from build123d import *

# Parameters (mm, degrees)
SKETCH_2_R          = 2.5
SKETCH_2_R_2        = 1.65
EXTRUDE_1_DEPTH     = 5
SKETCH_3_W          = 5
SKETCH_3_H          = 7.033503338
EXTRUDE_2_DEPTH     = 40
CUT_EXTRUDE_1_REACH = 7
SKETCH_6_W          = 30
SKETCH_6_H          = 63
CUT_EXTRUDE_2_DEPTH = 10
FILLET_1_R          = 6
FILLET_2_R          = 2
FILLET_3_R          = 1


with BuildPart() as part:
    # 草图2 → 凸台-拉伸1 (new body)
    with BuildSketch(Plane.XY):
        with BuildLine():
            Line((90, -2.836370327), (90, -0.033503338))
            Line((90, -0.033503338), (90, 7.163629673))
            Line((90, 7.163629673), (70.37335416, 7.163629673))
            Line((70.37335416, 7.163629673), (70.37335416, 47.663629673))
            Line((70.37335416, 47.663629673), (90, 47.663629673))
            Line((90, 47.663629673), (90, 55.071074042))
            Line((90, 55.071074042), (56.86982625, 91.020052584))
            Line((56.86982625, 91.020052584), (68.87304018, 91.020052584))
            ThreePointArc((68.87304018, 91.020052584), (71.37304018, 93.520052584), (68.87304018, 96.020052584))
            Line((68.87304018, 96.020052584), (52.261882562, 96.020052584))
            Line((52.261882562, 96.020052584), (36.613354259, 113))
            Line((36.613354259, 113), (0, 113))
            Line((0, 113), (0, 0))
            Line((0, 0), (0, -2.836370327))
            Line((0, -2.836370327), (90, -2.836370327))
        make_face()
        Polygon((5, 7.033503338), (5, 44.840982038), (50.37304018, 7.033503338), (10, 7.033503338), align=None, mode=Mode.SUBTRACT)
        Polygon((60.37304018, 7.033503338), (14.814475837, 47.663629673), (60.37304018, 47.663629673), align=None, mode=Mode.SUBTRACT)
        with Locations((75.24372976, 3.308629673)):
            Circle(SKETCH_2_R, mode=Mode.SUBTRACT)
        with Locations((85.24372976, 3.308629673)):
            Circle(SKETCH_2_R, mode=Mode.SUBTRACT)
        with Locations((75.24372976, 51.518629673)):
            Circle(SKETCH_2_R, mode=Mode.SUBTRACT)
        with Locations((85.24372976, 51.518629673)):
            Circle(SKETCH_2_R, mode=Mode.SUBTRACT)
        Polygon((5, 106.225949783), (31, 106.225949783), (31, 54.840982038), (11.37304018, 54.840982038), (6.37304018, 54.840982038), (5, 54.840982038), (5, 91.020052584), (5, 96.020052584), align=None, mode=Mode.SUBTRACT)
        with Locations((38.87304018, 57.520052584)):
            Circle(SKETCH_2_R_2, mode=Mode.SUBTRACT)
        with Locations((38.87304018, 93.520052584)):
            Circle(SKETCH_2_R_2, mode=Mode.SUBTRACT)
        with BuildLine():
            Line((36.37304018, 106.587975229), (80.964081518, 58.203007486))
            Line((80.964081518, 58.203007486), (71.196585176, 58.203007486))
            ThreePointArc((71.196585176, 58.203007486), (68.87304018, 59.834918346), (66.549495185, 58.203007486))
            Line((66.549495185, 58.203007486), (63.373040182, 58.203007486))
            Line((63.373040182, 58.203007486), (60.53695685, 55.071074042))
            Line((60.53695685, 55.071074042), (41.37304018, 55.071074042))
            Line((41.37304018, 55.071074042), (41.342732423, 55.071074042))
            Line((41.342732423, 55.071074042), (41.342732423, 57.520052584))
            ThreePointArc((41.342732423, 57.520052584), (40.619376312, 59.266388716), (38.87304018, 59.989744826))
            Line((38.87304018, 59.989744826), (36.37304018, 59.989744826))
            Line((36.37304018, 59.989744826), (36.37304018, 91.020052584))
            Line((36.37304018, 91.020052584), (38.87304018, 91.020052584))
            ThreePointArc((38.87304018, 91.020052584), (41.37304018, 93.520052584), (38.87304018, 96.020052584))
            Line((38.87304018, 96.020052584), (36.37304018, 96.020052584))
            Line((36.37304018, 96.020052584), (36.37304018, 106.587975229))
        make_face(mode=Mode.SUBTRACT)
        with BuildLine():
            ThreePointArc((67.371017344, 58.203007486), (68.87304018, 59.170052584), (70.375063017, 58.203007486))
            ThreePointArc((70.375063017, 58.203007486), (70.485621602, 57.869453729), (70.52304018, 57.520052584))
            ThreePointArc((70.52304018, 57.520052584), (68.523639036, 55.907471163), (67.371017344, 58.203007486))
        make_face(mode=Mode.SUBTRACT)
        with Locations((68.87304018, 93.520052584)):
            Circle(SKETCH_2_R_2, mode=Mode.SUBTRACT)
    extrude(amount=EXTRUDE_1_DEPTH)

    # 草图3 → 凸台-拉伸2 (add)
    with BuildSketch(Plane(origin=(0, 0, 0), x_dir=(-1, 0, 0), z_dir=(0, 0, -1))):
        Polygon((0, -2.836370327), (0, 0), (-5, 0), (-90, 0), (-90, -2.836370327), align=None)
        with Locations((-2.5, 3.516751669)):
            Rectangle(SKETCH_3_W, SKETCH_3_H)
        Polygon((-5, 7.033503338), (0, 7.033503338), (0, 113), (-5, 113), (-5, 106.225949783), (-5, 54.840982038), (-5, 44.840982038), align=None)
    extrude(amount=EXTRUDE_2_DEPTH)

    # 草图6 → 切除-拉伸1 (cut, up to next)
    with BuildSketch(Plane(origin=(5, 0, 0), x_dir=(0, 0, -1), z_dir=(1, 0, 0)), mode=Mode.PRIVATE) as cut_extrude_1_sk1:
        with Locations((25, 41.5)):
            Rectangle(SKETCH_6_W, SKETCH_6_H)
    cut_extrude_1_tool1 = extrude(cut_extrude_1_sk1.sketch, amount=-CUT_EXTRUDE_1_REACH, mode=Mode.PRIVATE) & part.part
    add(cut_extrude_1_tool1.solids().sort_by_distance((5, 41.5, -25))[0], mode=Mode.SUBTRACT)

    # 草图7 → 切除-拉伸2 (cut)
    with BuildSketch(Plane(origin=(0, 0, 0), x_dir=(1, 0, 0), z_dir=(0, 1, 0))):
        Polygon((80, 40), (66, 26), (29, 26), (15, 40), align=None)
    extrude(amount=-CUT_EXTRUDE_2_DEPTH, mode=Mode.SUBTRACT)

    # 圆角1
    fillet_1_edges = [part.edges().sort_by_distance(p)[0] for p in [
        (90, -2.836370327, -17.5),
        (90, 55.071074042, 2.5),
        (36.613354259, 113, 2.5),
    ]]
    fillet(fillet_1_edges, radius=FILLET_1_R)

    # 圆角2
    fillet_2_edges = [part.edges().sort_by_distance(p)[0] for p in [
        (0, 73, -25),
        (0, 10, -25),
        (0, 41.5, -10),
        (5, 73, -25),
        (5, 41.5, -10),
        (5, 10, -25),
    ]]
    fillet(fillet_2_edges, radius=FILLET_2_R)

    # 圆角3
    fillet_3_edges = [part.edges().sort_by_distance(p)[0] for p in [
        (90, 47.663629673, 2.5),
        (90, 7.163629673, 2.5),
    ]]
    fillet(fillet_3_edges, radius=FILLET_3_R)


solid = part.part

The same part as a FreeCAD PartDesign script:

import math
import FreeCAD as App
import Part
import Sketcher

V = App.Vector
Q = App.Units.Quantity


def edges_at(feature, points):
    """Names of the edges that pass closest to the given points."""
    edges = feature.Shape.Edges
    near = lambda p: min(range(len(edges)), key=lambda i: edges[i].distToShape(Part.Vertex(*p))[0])
    return sorted({f"Edge{near(p) + 1}" for p in points})

doc = App.newDocument("Part")
body = doc.addObject("PartDesign::Body", "Body")

# Sketch on XY plane
sketch1 = doc.addObject("Sketcher::SketchObject", "Sketch")
body.addObject(sketch1)
sketch1.AttachmentSupport = (doc.XY_Plane, [""])
sketch1.MapMode = "FlatFace"
sketch1.addGeometry(Part.LineSegment(V(90, -2.8, 0), V(90, 7.2, 0)), False)
sketch1.addGeometry(Part.LineSegment(V(90, 7.2, 0), V(70.4, 7.2, 0)), False)
sketch1.addGeometry(Part.LineSegment(V(70.4, 7.2, 0), V(70.4, 47.7, 0)), False)
sketch1.addGeometry(Part.LineSegment(V(70.4, 47.7, 0), V(90, 47.7, 0)), False)
sketch1.addGeometry(Part.LineSegment(V(90, 47.7, 0), V(90, 55.1, 0)), False)
sketch1.addGeometry(Part.LineSegment(V(90, 55.1, 0), V(56.9, 91, 0)), False)
sketch1.addGeometry(Part.LineSegment(V(56.9, 91, 0), V(68.9, 91, 0)), False)
sketch1.addGeometry(Part.ArcOfCircle(Part.Circle(V(68.9, 93.5, 0), V(0, 0, 1), 2.5), math.radians(-90), math.radians(90)), False)
sketch1.addGeometry(Part.LineSegment(V(68.9, 96, 0), V(52.3, 96, 0)), False)
sketch1.addGeometry(Part.LineSegment(V(52.3, 96, 0), V(36.6, 113, 0)), False)
sketch1.addGeometry(Part.LineSegment(V(36.6, 113, 0), V(0, 113, 0)), False)
sketch1.addGeometry(Part.LineSegment(V(0, 113, 0), V(0, -2.8, 0)), False)
sketch1.addGeometry(Part.LineSegment(V(0, -2.8, 0), V(90, -2.8, 0)), False)
sketch1.addGeometry(Part.LineSegment(V(50.4, 7, 0), V(5, 7, 0)), False)
sketch1.addGeometry(Part.LineSegment(V(5, 7, 0), V(5, 44.8, 0)), False)
sketch1.addGeometry(Part.LineSegment(V(5, 44.8, 0), V(50.4, 7, 0)), False)
sketch1.addGeometry(Part.LineSegment(V(60.4, 47.7, 0), V(60.4, 7, 0)), False)
sketch1.addGeometry(Part.LineSegment(V(60.4, 7, 0), V(14.8, 47.7, 0)), False)
sketch1.addGeometry(Part.LineSegment(V(14.8, 47.7, 0), V(60.4, 47.7, 0)), False)
sketch1.addGeometry(Part.Circle(V(75.2, 3.3, 0), V(0, 0, 1), 2.5), False)
sketch1.addGeometry(Part.Circle(V(85.2, 3.3, 0), V(0, 0, 1), 2.5), False)
sketch1.addGeometry(Part.Circle(V(75.2, 51.5, 0), V(0, 0, 1), 2.5), False)
sketch1.addGeometry(Part.Circle(V(85.2, 51.5, 0), V(0, 0, 1), 2.5), False)
sketch1.addGeometry(Part.Circle(V(38.9, 57.5, 0), V(0, 0, 1), 1.6), False)
sketch1.addGeometry(Part.LineSegment(V(5, 54.8, 0), V(5, 106.2, 0)), False)
sketch1.addGeometry(Part.LineSegment(V(5, 106.2, 0), V(31, 106.2, 0)), False)
sketch1.addGeometry(Part.LineSegment(V(31, 106.2, 0), V(31, 54.8, 0)), False)
sketch1.addGeometry(Part.LineSegment(V(31, 54.8, 0), V(5, 54.8, 0)), False)
sketch1.addGeometry(Part.Circle(V(38.9, 93.5, 0), V(0, 0, 1), 1.6), False)
sketch1.addGeometry(Part.ArcOfCircle(Part.Circle(V(68.9, 57.5, 0), V(0, 0, 1), 1.6), math.radians(156), math.radians(360)), False)
sketch1.addGeometry(Part.ArcOfCircle(Part.Circle(V(68.9, 57.5, 0), V(0, 0, 1), 1.6), math.radians(24), math.radians(156)), False)
sketch1.addGeometry(Part.ArcOfCircle(Part.Circle(V(68.9, 57.5, 0), V(0, 0, 1), 1.6), math.radians(0), math.radians(24)), False)
sketch1.addGeometry(Part.LineSegment(V(36.4, 96, 0), V(36.4, 106.6, 0)), False)
sketch1.addGeometry(Part.LineSegment(V(36.4, 106.6, 0), V(81, 58.2, 0)), False)
sketch1.addGeometry(Part.LineSegment(V(81, 58.2, 0), V(71.2, 58.2, 0)), False)
sketch1.addGeometry(Part.ArcOfCircle(Part.Circle(V(68.9, 57.4, 0), V(0, 0, 1), 2.5), math.radians(20), math.radians(160)), False)
sketch1.addGeometry(Part.LineSegment(V(66.5, 58.2, 0), V(63.4, 58.2, 0)), False)
sketch1.addGeometry(Part.LineSegment(V(63.4, 58.2, 0), V(60.5, 55.1, 0)), False)
sketch1.addGeometry(Part.LineSegment(V(60.5, 55.1, 0), V(41.3, 55.1, 0)), False)
sketch1.addGeometry(Part.LineSegment(V(41.3, 55.1, 0), V(41.3, 57.5, 0)), False)
sketch1.addGeometry(Part.ArcOfCircle(Part.Circle(V(38.9, 57.5, 0), V(0, 0, 1), 2.5), math.radians(0), math.radians(90)), False)
sketch1.addGeometry(Part.LineSegment(V(38.9, 60, 0), V(36.4, 60, 0)), False)
sketch1.addGeometry(Part.LineSegment(V(36.4, 60, 0), V(36.4, 91, 0)), False)
sketch1.addGeometry(Part.LineSegment(V(36.4, 91, 0), V(38.9, 91, 0)), False)
sketch1.addGeometry(Part.ArcOfCircle(Part.Circle(V(38.9, 93.5, 0), V(0, 0, 1), 2.5), math.radians(-90), math.radians(90)), False)
sketch1.addGeometry(Part.LineSegment(V(38.9, 96, 0), V(36.4, 96, 0)), False)
sketch1.addGeometry(Part.Circle(V(68.9, 93.5, 0), V(0, 0, 1), 1.6), False)
sketch1.addConstraint(Sketcher.Constraint("Coincident", 0, 2, 1, 1))
sketch1.addConstraint(Sketcher.Constraint("Coincident", 1, 2, 2, 1))
sketch1.addConstraint(Sketcher.Constraint("Coincident", 2, 2, 3, 1))
sketch1.addConstraint(Sketcher.Constraint("Coincident", 3, 2, 4, 1))
sketch1.addConstraint(Sketcher.Constraint("Coincident", 4, 2, 5, 1))
sketch1.addConstraint(Sketcher.Constraint("Coincident", 5, 2, 6, 1))
sketch1.addConstraint(Sketcher.Constraint("Tangent", 6, 2, 7, 1))
sketch1.addConstraint(Sketcher.Constraint("Tangent", 7, 2, 8, 1))
sketch1.addConstraint(Sketcher.Constraint("Coincident", 8, 2, 9, 1))
sketch1.addConstraint(Sketcher.Constraint("Coincident", 9, 2, 10, 1))
sketch1.addConstraint(Sketcher.Constraint("Coincident", 10, 2, 11, 1))
sketch1.addConstraint(Sketcher.Constraint("Coincident", 11, 2, 12, 1))
sketch1.addConstraint(Sketcher.Constraint("Coincident", 12, 2, 0, 1))
sketch1.addConstraint(Sketcher.Constraint("Coincident", 13, 2, 14, 1))
sketch1.addConstraint(Sketcher.Constraint("Coincident", 14, 2, 15, 1))
sketch1.addConstraint(Sketcher.Constraint("Coincident", 15, 2, 13, 1))
sketch1.addConstraint(Sketcher.Constraint("Coincident", 16, 2, 17, 1))
sketch1.addConstraint(Sketcher.Constraint("Coincident", 17, 2, 18, 1))
sketch1.addConstraint(Sketcher.Constraint("Coincident", 18, 2, 16, 1))
sketch1.addConstraint(Sketcher.Constraint("Coincident", 24, 2, 25, 1))
sketch1.addConstraint(Sketcher.Constraint("Coincident", 25, 2, 26, 1))
sketch1.addConstraint(Sketcher.Constraint("Coincident", 26, 2, 27, 1))
sketch1.addConstraint(Sketcher.Constraint("Coincident", 27, 2, 24, 1))
sketch1.addConstraint(Sketcher.Constraint("Tangent", 29, 1, 30, 2))
sketch1.addConstraint(Sketcher.Constraint("Tangent", 30, 1, 31, 2))
sketch1.addConstraint(Sketcher.Constraint("Tangent", 31, 1, 29, 2))
sketch1.addConstraint(Sketcher.Constraint("Coincident", 32, 2, 33, 1))
sketch1.addConstraint(Sketcher.Constraint("Coincident", 33, 2, 34, 1))
sketch1.addConstraint(Sketcher.Constraint("Coincident", 34, 2, 35, 1))
sketch1.addConstraint(Sketcher.Constraint("Coincident", 35, 2, 36, 1))
sketch1.addConstraint(Sketcher.Constraint("Coincident", 36, 2, 37, 1))
sketch1.addConstraint(Sketcher.Constraint("Coincident", 37, 2, 38, 1))
sketch1.addConstraint(Sketcher.Constraint("Coincident", 38, 2, 39, 1))
sketch1.addConstraint(Sketcher.Constraint("Tangent", 39, 2, 40, 1))
sketch1.addConstraint(Sketcher.Constraint("Tangent", 40, 2, 41, 1))
sketch1.addConstraint(Sketcher.Constraint("Coincident", 41, 2, 42, 1))
sketch1.addConstraint(Sketcher.Constraint("Coincident", 42, 2, 43, 1))
sketch1.addConstraint(Sketcher.Constraint("Tangent", 43, 2, 44, 1))
sketch1.addConstraint(Sketcher.Constraint("Tangent", 44, 2, 45, 1))
sketch1.addConstraint(Sketcher.Constraint("Coincident", 45, 2, 32, 1))
sketch1.addConstraint(Sketcher.Constraint("Vertical", 0))
sketch1.addConstraint(Sketcher.Constraint("Horizontal", 1))
sketch1.addConstraint(Sketcher.Constraint("Vertical", 2))
sketch1.addConstraint(Sketcher.Constraint("Horizontal", 3))
sketch1.addConstraint(Sketcher.Constraint("Vertical", 4))
sketch1.addConstraint(Sketcher.Constraint("Horizontal", 6))
sketch1.addConstraint(Sketcher.Constraint("Horizontal", 8))
sketch1.addConstraint(Sketcher.Constraint("Horizontal", 10))
sketch1.addConstraint(Sketcher.Constraint("Vertical", 11))
sketch1.addConstraint(Sketcher.Constraint("Horizontal", 12))
sketch1.addConstraint(Sketcher.Constraint("Horizontal", 13))
sketch1.addConstraint(Sketcher.Constraint("Vertical", 14))
sketch1.addConstraint(Sketcher.Constraint("Vertical", 16))
sketch1.addConstraint(Sketcher.Constraint("Horizontal", 18))
sketch1.addConstraint(Sketcher.Constraint("Vertical", 24))
sketch1.addConstraint(Sketcher.Constraint("Horizontal", 25))
sketch1.addConstraint(Sketcher.Constraint("Vertical", 26))
sketch1.addConstraint(Sketcher.Constraint("Horizontal", 27))
sketch1.addConstraint(Sketcher.Constraint("Vertical", 32))
sketch1.addConstraint(Sketcher.Constraint("Horizontal", 34))
sketch1.addConstraint(Sketcher.Constraint("Horizontal", 36))
sketch1.addConstraint(Sketcher.Constraint("Horizontal", 38))
sketch1.addConstraint(Sketcher.Constraint("Vertical", 39))
sketch1.addConstraint(Sketcher.Constraint("Horizontal", 41))
sketch1.addConstraint(Sketcher.Constraint("Vertical", 42))
sketch1.addConstraint(Sketcher.Constraint("Horizontal", 43))
sketch1.addConstraint(Sketcher.Constraint("Horizontal", 45))
sketch1.addConstraint(Sketcher.Constraint("Coincident", 40, 3, 23, 3))
sketch1.addConstraint(Sketcher.Constraint("Coincident", 44, 3, 28, 3))
sketch1.addConstraint(Sketcher.Constraint("Coincident", 46, 3, 7, 3))
sketch1.addConstraint(Sketcher.Constraint("Equal", 7, 19))
sketch1.addConstraint(Sketcher.Constraint("Equal", 19, 20))
sketch1.addConstraint(Sketcher.Constraint("Equal", 20, 21))
sketch1.addConstraint(Sketcher.Constraint("Equal", 21, 22))
sketch1.addConstraint(Sketcher.Constraint("Equal", 23, 28))
sketch1.addConstraint(Sketcher.Constraint("Equal", 28, 29))
sketch1.addConstraint(Sketcher.Constraint("Equal", 22, 44))
sketch1.addConstraint(Sketcher.Constraint("Equal", 31, 46))
sketch1.addConstraint(Sketcher.Constraint("PointOnObject", 10, 2, -2))
sketch1.addConstraint(Sketcher.Constraint("Parallel", 5, 9))
sketch1.addConstraint(Sketcher.Constraint("Parallel", 9, 33))
sketch1.addConstraint(Sketcher.Constraint("Horizontal", 19, 3, 20, 3))
sketch1.addConstraint(Sketcher.Constraint("Horizontal", 21, 3, 22, 3))
sketch1.addConstraint(Sketcher.Constraint("Horizontal", 7, 3, 28, 3))
sketch1.addConstraint(Sketcher.Constraint("Horizontal", 23, 3, 29, 3))
sketch1.addConstraint(Sketcher.Constraint("Horizontal", 15, 2, 16, 2))
sketch1.addConstraint(Sketcher.Constraint("Horizontal", 3, 2, 17, 2))
sketch1.addConstraint(Sketcher.Constraint("Horizontal", 29, 1, 30, 1))
sketch1.addConstraint(Sketcher.Constraint("Horizontal", 40, 3, 31, 1))
sketch1.addConstraint(Sketcher.Constraint("Horizontal", 30, 1, 33, 2))
sketch1.addConstraint(Sketcher.Constraint("Horizontal", 34, 2, 35, 2))
sketch1.addConstraint(Sketcher.Constraint("Horizontal", 4, 2, 37, 2))
sketch1.addConstraint(Sketcher.Constraint("Vertical", 19, 3, 21, 3))
sketch1.addConstraint(Sketcher.Constraint("Vertical", 20, 3, 22, 3))
sketch1.addConstraint(Sketcher.Constraint("Vertical", 23, 3, 28, 3))
sketch1.addConstraint(Sketcher.Constraint("Vertical", 7, 3, 29, 3))
sketch1.addConstraint(Sketcher.Constraint("Vertical", 31, 3, 35, 3))
sketch1.addConstraint(Sketcher.Constraint("Vertical", 0, 2, 3, 2))
sketch1.addConstraint(Sketcher.Constraint("Vertical", 14, 2, 24, 2))
sketch1.addConstraint(Sketcher.Constraint("Vertical", 32, 2, 41, 2))
sketch1.addConstraint(Sketcher.Constraint("Diameter", 19, Q("5 mm")))
sketch1.addConstraint(Sketcher.Constraint("Diameter", 23, Q("3.3 mm")))
sketch1.addConstraint(Sketcher.Constraint("DistanceX", 12, 1, 12, 2, Q("90 mm")))
sketch1.addConstraint(Sketcher.Constraint("DistanceX", 25, 1, 25, 2, Q("26 mm")))
sketch1.addConstraint(Sketcher.Constraint("DistanceY", 0, 1, 0, 2, Q("10 mm")))
sketch1.addConstraint(Sketcher.Constraint("DistanceX", 41, 2, 41, 1, Q("2.5 mm")))
sketch1.addConstraint(Sketcher.Constraint("DistanceY", 2, 1, 2, 2, Q("40.5 mm")))
sketch1.addConstraint(Sketcher.Constraint("DistanceY", -1, 1, 9, 2, Q("113 mm")))
sketch1.addConstraint(Sketcher.Constraint("DistanceX", -1, 1, 13, 2, Q("5 mm")))
sketch1.addConstraint(Sketcher.Constraint("DistanceX", 19, 3, 20, 3, Q("10 mm")))
sketch1.addConstraint(Sketcher.Constraint("DistanceX", 23, 3, 7, 3, Q("30 mm")))
sketch1.addConstraint(Sketcher.Constraint("DistanceY", 23, 3, 7, 3, Q("36 mm")))
sketch1.addConstraint(Sketcher.Constraint("DistanceX", 15, 2, 16, 2, Q("10 mm")))
sketch1.addConstraint(Sketcher.Constraint("DistanceY", 14, 2, 26, 2, Q("10 mm")))
sketch1.addConstraint(Sketcher.Constraint("DistanceX", 18, 2, 35, 3, Q("8.5 mm")))
sketch1.addConstraint(Sketcher.Constraint("DistanceX", 36, 2, 29, 3, Q("5.5 mm")))
sketch1.addConstraint(Sketcher.Constraint("Radius", 35, Q("2.470109 mm")))
sketch1.addConstraint(Sketcher.Constraint("DistanceY", 19, 3, 21, 3, Q("48.21 mm")))
sketch1.addConstraint(Sketcher.Constraint("Radius", 40, Q("2.469692 mm")))
sketch1.addConstraint(Sketcher.Constraint("DistanceY", 20, 3, 0, 2, Q("3.855 mm")))
sketch1.addConstraint(Sketcher.Constraint("DistanceX", 13, 2, 13, 1, Q("45.37304 mm")))
sketch1.addConstraint(Sketcher.Constraint("DistanceY", 11, 2, 11, 1, Q("115.83637 mm")))
sketch1.addConstraint(Sketcher.Constraint("DistanceY", 14, 1, 14, 2, Q("37.807479 mm")))
sketch1.addConstraint(Sketcher.Constraint("DistanceY", 39, 1, 39, 2, Q("2.448979 mm")))
sketch1.addConstraint(Sketcher.Constraint("Distance", 33, Q("65.798678 mm")))
sketch1.addConstraint(Sketcher.Constraint("DistanceX", 1, 2, 1, 1, Q("19.626646 mm")))
sketch1.addConstraint(Sketcher.Constraint("DistanceX", 6, 1, 6, 2, Q("12.003214 mm")))
sketch1.addConstraint(Sketcher.Constraint("DistanceX", 8, 2, 8, 1, Q("16.611158 mm")))
sketch1.addConstraint(Sketcher.Constraint("DistanceX", 10, 2, 10, 1, Q("36.613354 mm")))
sketch1.addConstraint(Sketcher.Constraint("DistanceX", 18, 1, 18, 2, Q("45.558564 mm")))
sketch1.addConstraint(Sketcher.Constraint("DistanceX", 34, 2, 34, 1, Q("9.767496 mm")))
sketch1.addConstraint(Sketcher.Constraint("DistanceX", 38, 2, 38, 1, Q("19.194224 mm")))
sketch1.addConstraint(Sketcher.Constraint("DistanceY", 16, 2, 16, 1, Q("40.630126 mm")))
sketch1.addConstraint(Sketcher.Constraint("DistanceY", 24, 1, 24, 2, Q("51.384968 mm")))
sketch1.addConstraint(Sketcher.Constraint("DistanceY", 32, 1, 32, 2, Q("10.567923 mm")))
sketch1.addConstraint(Sketcher.Constraint("DistanceX", -1, 1, 19, 3, Q("75.24373 mm")))
pad1 = doc.addObject("PartDesign::Pad", "Pad")
body.addObject(pad1)
pad1.Profile = sketch1
pad1.Length = 5

# Sketch on XY plane
sketch2 = doc.addObject("Sketcher::SketchObject", "Sketch001")
body.addObject(sketch2)
sketch2.AttachmentSupport = (doc.XY_Plane, [""])
sketch2.MapMode = "FlatFace"
sketch2.addGeometry(Part.LineSegment(V(0, -2.8, 0), V(0, 113, 0)), False)
sketch2.addGeometry(Part.LineSegment(V(0, 113, 0), V(5, 113, 0)), False)
sketch2.addGeometry(Part.LineSegment(V(5, 113, 0), V(5, 0, 0)), False)
sketch2.addGeometry(Part.LineSegment(V(5, 0, 0), V(90, 0, 0)), False)
sketch2.addGeometry(Part.LineSegment(V(90, 0, 0), V(90, -2.8, 0)), False)
sketch2.addGeometry(Part.LineSegment(V(90, -2.8, 0), V(0, -2.8, 0)), False)
sketch2.addConstraint(Sketcher.Constraint("Coincident", 0, 2, 1, 1))
sketch2.addConstraint(Sketcher.Constraint("Coincident", 1, 2, 2, 1))
sketch2.addConstraint(Sketcher.Constraint("Coincident", 2, 2, 3, 1))
sketch2.addConstraint(Sketcher.Constraint("Coincident", 3, 2, 4, 1))
sketch2.addConstraint(Sketcher.Constraint("Coincident", 4, 2, 5, 1))
sketch2.addConstraint(Sketcher.Constraint("Coincident", 5, 2, 0, 1))
sketch2.addConstraint(Sketcher.Constraint("Vertical", 0))
sketch2.addConstraint(Sketcher.Constraint("Horizontal", 1))
sketch2.addConstraint(Sketcher.Constraint("Vertical", 2))
sketch2.addConstraint(Sketcher.Constraint("Horizontal", 3))
sketch2.addConstraint(Sketcher.Constraint("Vertical", 4))
sketch2.addConstraint(Sketcher.Constraint("Horizontal", 5))
sketch2.addConstraint(Sketcher.Constraint("PointOnObject", 0, 2, -2))
sketch2.addConstraint(Sketcher.Constraint("PointOnObject", 2, 2, -1))
sketch2.addConstraint(Sketcher.Constraint("DistanceX", 1, 1, 1, 2, Q("5 mm")))
sketch2.addConstraint(Sketcher.Constraint("DistanceX", 3, 1, 3, 2, Q("85 mm")))
sketch2.addConstraint(Sketcher.Constraint("DistanceY", 2, 2, 2, 1, Q("113 mm")))
sketch2.addConstraint(Sketcher.Constraint("DistanceY", 0, 1, 0, 2, Q("115.83637 mm")))
pad2 = doc.addObject("PartDesign::Pad", "Pad001")
body.addObject(pad2)
pad2.Profile = sketch2
pad2.Length = 40
pad2.Reversed = True

# Sketch on YZ plane
sketch3 = doc.addObject("Sketcher::SketchObject", "Sketch002")
body.addObject(sketch3)
sketch3.AttachmentSupport = (doc.YZ_Plane, [""])
sketch3.MapMode = "FlatFace"
sketch3.AttachmentOffset = App.Placement(V(0, 0, 5), App.Rotation())
sketch3.addGeometry(Part.LineSegment(V(73, -10, 0), V(10, -10, 0)), False)
sketch3.addGeometry(Part.LineSegment(V(10, -10, 0), V(10, -40, 0)), False)
sketch3.addGeometry(Part.LineSegment(V(10, -40, 0), V(73, -40, 0)), False)
sketch3.addGeometry(Part.LineSegment(V(73, -40, 0), V(73, -10, 0)), False)
sketch3.addConstraint(Sketcher.Constraint("Coincident", 0, 2, 1, 1))
sketch3.addConstraint(Sketcher.Constraint("Coincident", 1, 2, 2, 1))
sketch3.addConstraint(Sketcher.Constraint("Coincident", 2, 2, 3, 1))
sketch3.addConstraint(Sketcher.Constraint("Coincident", 3, 2, 0, 1))
sketch3.addConstraint(Sketcher.Constraint("Horizontal", 0))
sketch3.addConstraint(Sketcher.Constraint("Vertical", 1))
sketch3.addConstraint(Sketcher.Constraint("Horizontal", 2))
sketch3.addConstraint(Sketcher.Constraint("Vertical", 3))
sketch3.addConstraint(Sketcher.Constraint("DistanceX", 0, 2, 0, 1, Q("63 mm")))
sketch3.addConstraint(Sketcher.Constraint("DistanceY", 1, 2, 1, 1, Q("30 mm")))
sketch3.addConstraint(Sketcher.Constraint("DistanceX", -1, 1, 0, 2, Q("10 mm")))
sketch3.addConstraint(Sketcher.Constraint("DistanceY", 0, 2, -1, 1, Q("10 mm")))
pocket1 = doc.addObject("PartDesign::Pocket", "Pocket")
body.addObject(pocket1)
pocket1.Profile = sketch3
pocket1.Type = "UpToFirst"

# Sketch on XZ plane
sketch4 = doc.addObject("Sketcher::SketchObject", "Sketch003")
body.addObject(sketch4)
sketch4.AttachmentSupport = (doc.XZ_Plane, [""])
sketch4.MapMode = "FlatFace"
sketch4.addGeometry(Part.LineSegment(V(66, -26, 0), V(80, -40, 0)), False)
sketch4.addGeometry(Part.LineSegment(V(80, -40, 0), V(15, -40, 0)), False)
sketch4.addGeometry(Part.LineSegment(V(15, -40, 0), V(29, -26, 0)), False)
sketch4.addGeometry(Part.LineSegment(V(29, -26, 0), V(66, -26, 0)), False)
sketch4.addConstraint(Sketcher.Constraint("Coincident", 0, 2, 1, 1))
sketch4.addConstraint(Sketcher.Constraint("Coincident", 1, 2, 2, 1))
sketch4.addConstraint(Sketcher.Constraint("Coincident", 2, 2, 3, 1))
sketch4.addConstraint(Sketcher.Constraint("Coincident", 3, 2, 0, 1))
sketch4.addConstraint(Sketcher.Constraint("Horizontal", 1))
sketch4.addConstraint(Sketcher.Constraint("Horizontal", 3))
sketch4.addConstraint(Sketcher.Constraint("Perpendicular", 0, 2))
sketch4.addConstraint(Sketcher.Constraint("Equal", 0, 2))
sketch4.addConstraint(Sketcher.Constraint("DistanceX", 1, 2, 1, 1, Q("65 mm")))
sketch4.addConstraint(Sketcher.Constraint("DistanceX", 3, 1, 3, 2, Q("37 mm")))
sketch4.addConstraint(Sketcher.Constraint("DistanceX", -1, 1, 0, 2, Q("80 mm")))
sketch4.addConstraint(Sketcher.Constraint("DistanceY", 0, 2, -1, 1, Q("40 mm")))
pocket2 = doc.addObject("PartDesign::Pocket", "Pocket001")
body.addObject(pocket2)
pocket2.Profile = sketch4
pocket2.Length = 10
pocket2.Reversed = True
doc.recompute()

fillet = doc.addObject("PartDesign::Fillet", "Fillet")
body.addObject(fillet)
fillet.Base = (pocket2, edges_at(pocket2, [(90, -2.836, -17.5), (90, 55.071, 2.5), (36.613, 113, 2.5)]))
fillet.Radius = 6
doc.recompute()

fillet2 = doc.addObject("PartDesign::Fillet", "Fillet001")
body.addObject(fillet2)
fillet2.Base = (fillet, edges_at(fillet, [
    (0, 73, -25),
    (0, 10, -25),
    (0, 41.5, -10),
    (5, 73, -25),
    (5, 41.5, -10),
    (5, 10, -25),
]))
fillet2.Radius = 2
doc.recompute()

fillet3 = doc.addObject("PartDesign::Fillet", "Fillet002")
body.addObject(fillet3)
fillet3.Base = (fillet2, edges_at(fillet2, [(90, 47.664, 2.5), (90, 7.164, 2.5)]))
fillet3.Radius = 1

doc.recompute()
